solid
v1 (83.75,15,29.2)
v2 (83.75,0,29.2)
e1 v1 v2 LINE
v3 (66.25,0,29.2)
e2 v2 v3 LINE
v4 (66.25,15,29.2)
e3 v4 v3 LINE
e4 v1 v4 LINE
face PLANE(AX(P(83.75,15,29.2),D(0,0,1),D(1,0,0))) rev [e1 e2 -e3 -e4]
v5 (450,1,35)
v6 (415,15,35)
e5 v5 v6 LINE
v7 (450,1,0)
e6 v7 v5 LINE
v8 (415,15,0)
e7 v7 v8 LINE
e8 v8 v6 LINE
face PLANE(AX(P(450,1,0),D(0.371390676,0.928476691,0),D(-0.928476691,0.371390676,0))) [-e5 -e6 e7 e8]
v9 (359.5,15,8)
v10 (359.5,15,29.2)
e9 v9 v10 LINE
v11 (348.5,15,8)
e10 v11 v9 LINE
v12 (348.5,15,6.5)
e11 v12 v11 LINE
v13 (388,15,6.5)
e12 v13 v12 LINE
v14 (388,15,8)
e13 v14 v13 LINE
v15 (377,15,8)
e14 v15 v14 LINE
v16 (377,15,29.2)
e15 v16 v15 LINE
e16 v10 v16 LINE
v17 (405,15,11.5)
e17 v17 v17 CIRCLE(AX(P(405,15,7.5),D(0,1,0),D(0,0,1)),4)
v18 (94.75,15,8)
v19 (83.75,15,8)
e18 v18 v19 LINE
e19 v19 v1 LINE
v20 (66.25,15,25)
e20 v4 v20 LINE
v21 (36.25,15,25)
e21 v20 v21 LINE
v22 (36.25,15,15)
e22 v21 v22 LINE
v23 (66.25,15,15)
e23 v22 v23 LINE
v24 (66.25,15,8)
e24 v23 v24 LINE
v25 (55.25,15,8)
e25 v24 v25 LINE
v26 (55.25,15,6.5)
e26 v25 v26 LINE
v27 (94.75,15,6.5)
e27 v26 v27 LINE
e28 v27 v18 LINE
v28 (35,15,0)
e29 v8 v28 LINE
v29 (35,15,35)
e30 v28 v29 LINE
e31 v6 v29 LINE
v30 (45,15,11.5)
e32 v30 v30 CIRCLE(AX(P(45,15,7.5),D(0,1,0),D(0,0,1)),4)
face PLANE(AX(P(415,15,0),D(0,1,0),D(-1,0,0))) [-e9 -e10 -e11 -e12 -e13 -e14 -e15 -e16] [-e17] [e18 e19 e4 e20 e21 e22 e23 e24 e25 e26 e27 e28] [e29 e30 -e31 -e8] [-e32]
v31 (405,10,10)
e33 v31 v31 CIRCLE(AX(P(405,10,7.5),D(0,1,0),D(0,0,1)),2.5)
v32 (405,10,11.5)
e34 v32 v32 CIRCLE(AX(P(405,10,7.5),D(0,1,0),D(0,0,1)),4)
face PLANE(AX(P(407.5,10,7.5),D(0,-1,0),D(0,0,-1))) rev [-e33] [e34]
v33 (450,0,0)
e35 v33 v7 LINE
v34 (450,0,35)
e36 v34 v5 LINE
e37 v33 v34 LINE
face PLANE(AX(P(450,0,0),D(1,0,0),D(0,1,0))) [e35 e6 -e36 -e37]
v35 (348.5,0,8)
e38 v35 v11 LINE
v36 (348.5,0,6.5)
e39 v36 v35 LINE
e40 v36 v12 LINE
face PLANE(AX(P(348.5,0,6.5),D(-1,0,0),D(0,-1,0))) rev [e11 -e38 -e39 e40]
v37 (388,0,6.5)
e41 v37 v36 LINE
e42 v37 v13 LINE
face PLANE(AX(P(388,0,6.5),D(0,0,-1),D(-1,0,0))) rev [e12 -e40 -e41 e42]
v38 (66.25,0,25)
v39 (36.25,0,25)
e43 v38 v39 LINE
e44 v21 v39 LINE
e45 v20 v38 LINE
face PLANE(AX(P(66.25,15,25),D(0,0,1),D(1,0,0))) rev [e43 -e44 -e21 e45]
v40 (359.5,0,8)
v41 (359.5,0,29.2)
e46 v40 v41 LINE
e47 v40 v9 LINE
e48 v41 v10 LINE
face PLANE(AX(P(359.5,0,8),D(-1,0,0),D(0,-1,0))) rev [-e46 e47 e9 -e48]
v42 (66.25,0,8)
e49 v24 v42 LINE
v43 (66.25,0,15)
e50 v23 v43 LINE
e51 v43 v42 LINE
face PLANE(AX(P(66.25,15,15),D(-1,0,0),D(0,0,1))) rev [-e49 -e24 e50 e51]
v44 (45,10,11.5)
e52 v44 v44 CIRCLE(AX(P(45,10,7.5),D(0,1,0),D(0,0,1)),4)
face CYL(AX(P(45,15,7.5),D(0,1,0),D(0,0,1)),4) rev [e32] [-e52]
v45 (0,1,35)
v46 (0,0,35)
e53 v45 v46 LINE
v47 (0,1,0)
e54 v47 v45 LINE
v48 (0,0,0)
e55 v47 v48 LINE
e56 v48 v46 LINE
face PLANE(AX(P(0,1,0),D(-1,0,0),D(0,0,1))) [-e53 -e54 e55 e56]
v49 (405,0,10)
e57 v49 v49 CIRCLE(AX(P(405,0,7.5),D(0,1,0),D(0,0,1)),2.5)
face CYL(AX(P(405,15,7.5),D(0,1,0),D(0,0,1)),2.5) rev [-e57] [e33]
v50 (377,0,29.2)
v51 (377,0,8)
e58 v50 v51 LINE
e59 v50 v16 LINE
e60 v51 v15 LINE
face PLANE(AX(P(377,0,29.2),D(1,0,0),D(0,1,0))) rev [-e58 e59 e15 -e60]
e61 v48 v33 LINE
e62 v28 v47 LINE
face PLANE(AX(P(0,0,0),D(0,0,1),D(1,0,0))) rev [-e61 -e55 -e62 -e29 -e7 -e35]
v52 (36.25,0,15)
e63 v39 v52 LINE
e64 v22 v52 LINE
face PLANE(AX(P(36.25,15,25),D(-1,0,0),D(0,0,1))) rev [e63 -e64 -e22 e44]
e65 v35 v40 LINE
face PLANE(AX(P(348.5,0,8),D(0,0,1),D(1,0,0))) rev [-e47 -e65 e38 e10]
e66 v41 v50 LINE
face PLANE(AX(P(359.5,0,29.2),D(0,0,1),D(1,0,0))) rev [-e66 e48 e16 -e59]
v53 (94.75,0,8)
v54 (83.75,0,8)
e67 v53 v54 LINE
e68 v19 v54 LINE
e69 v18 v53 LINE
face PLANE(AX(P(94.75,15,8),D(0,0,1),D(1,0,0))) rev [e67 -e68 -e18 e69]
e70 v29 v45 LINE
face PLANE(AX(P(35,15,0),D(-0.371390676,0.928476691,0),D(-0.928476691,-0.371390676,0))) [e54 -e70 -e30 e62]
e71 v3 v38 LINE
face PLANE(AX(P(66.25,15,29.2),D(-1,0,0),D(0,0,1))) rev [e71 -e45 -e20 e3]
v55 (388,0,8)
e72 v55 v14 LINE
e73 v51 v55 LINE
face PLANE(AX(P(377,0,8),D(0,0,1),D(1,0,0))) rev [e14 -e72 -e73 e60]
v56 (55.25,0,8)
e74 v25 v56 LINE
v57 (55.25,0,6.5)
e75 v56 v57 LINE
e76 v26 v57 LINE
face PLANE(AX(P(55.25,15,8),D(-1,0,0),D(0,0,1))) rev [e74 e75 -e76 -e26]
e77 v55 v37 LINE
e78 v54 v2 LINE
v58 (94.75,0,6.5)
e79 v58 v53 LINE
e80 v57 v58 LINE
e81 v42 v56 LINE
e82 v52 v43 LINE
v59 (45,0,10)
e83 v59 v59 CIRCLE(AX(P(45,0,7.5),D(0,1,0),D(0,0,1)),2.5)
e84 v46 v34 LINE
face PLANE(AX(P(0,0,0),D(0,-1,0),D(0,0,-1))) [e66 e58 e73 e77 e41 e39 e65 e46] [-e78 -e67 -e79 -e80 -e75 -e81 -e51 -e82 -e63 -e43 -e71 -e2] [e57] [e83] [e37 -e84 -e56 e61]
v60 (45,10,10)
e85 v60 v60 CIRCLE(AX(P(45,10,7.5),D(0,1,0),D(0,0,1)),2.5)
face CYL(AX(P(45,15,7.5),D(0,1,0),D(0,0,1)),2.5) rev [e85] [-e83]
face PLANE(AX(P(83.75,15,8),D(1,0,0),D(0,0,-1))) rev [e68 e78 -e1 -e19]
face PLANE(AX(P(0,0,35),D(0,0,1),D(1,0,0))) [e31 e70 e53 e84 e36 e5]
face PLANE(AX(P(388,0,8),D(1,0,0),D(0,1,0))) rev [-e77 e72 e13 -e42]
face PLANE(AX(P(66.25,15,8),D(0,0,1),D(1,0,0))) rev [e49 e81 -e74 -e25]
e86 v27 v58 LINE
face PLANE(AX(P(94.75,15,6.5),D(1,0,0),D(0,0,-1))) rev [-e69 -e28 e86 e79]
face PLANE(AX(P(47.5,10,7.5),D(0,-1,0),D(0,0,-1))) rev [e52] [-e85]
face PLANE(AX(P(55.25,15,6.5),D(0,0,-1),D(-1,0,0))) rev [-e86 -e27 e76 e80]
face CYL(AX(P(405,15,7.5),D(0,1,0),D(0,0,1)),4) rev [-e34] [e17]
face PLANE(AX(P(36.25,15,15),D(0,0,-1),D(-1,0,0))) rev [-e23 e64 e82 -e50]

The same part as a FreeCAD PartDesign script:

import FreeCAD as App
import Part
import Sketcher
from FreeCAD import Vector

doc = App.newDocument("Part")
body = doc.addObject("PartDesign::Body", "Body")

sketch1 = body.newObject("Sketcher::SketchObject", "Sketch")
sketch1.AttachmentSupport = (doc.getObject("XY_Plane"), [""])
sketch1.MapMode = "FlatFace"
sketch1.AttachmentOffset = App.Placement(Vector(0, 0, 35), App.Rotation())
sketch1.addGeometry(Part.LineSegment(Vector(0, 0, 0), Vector(450, 0, 0)), False)
sketch1.addGeometry(Part.LineSegment(Vector(450, 0, 0), Vector(450, 1, 0)), False)
sketch1.addGeometry(Part.LineSegment(Vector(450, 1, 0), Vector(415, 15, 0)), False)
sketch1.addGeometry(Part.LineSegment(Vector(415, 15, 0), Vector(35, 15, 0)), False)
sketch1.addGeometry(Part.LineSegment(Vector(35, 15, 0), Vector(0, 1, 0)), False)
sketch1.addGeometry(Part.LineSegment(Vector(0, 1, 0), Vector(0, 0, 0)), False)
sketch1.addConstraint(Sketcher.Constraint("Coincident", 0, 2, 1, 1))
sketch1.addConstraint(Sketcher.Constraint("Coincident", 1, 2, 2, 1))
sketch1.addConstraint(Sketcher.Constraint("Coincident", 2, 2, 3, 1))
sketch1.addConstraint(Sketcher.Constraint("Coincident", 3, 2, 4, 1))
sketch1.addConstraint(Sketcher.Constraint("Coincident", 4, 2, 5, 1))
sketch1.addConstraint(Sketcher.Constraint("Coincident", 5, 2, 0, 1))
sketch1.addConstraint(Sketcher.Constraint("Horizontal", 0))
sketch1.addConstraint(Sketcher.Constraint("Vertical", 1))
sketch1.addConstraint(Sketcher.Constraint("Horizontal", 3))
sketch1.addConstraint(Sketcher.Constraint("Vertical", 5))
sketch1.addConstraint(Sketcher.Constraint("Coincident", 5, 2, -1, 1))
sketch1.addConstraint(Sketcher.Constraint("Horizontal", 1, 2, 4, 2))
sketch1.addConstraint(Sketcher.Constraint("Equal", 2, 4))
sketch1.addConstraint(Sketcher.Constraint("DistanceX", 0, 1, 0, 2, 450.0))
sketch1.addConstraint(Sketcher.Constraint("DistanceX", 3, 2, 3, 1, 380.0))
sketch1.addConstraint(Sketcher.Constraint("DistanceY", 1, 1, 1, 2, 1.0))
sketch1.addConstraint(Sketcher.Constraint("DistanceY", -1, 1, 2, 2, 15.0))
pad1 = body.newObject("PartDesign::Pad", "Pad")
pad1.Profile = sketch1
pad1.Length = 35
pad1.Reversed = True

sketch2 = body.newObject("Sketcher::SketchObject", "Sketch001")
sketch2.AttachmentSupport = (doc.getObject("XZ_Plane"), [""])
sketch2.MapMode = "FlatFace"
sketch2.AttachmentOffset = App.Placement(Vector(0, 0, -15), App.Rotation())
sketch2.addGeometry(Part.LineSegment(Vector(359.5, 8, 0), Vector(359.5, 29.2, 0)), False)
sketch2.addGeometry(Part.LineSegment(Vector(359.5, 29.2, 0), Vector(377, 29.2, 0)), False)
sketch2.addGeometry(Part.LineSegment(Vector(377, 29.2, 0), Vector(377, 8, 0)), False)
sketch2.addGeometry(Part.LineSegment(Vector(377, 8, 0), Vector(388, 8, 0)), False)
sketch2.addGeometry(Part.LineSegment(Vector(388, 8, 0), Vector(388, 6.5, 0)), False)
sketch2.addGeometry(Part.LineSegment(Vector(388, 6.5, 0), Vector(348.5, 6.5, 0)), False)
sketch2.addGeometry(Part.LineSegment(Vector(348.5, 6.5, 0), Vector(348.5, 8, 0)), False)
sketch2.addGeometry(Part.LineSegment(Vector(348.5, 8, 0), Vector(359.5, 8, 0)), False)
sketch2.addConstraint(Sketcher.Constraint("Coincident", 0, 2, 1, 1))
sketch2.addConstraint(Sketcher.Constraint("Coincident", 1, 2, 2, 1))
sketch2.addConstraint(Sketcher.Constraint("Coincident", 2, 2, 3, 1))
sketch2.addConstraint(Sketcher.Constraint("Coincident", 3, 2, 4, 1))
sketch2.addConstraint(Sketcher.Constraint("Coincident", 4, 2, 5, 1))
sketch2.addConstraint(Sketcher.Constraint("Coincident", 5, 2, 6, 1))
sketch2.addConstraint(Sketcher.Constraint("Coincident", 6, 2, 7, 1))
sketch2.addConstraint(Sketcher.Constraint("Coincident", 7, 2, 0, 1))
sketch2.addConstraint(Sketcher.Constraint("Vertical", 0))
sketch2.addConstraint(Sketcher.Constraint("Horizontal", 1))
sketch2.addConstraint(Sketcher.Constraint("Vertical", 2))
sketch2.addConstraint(Sketcher.Constraint("Horizontal", 3))
sketch2.addConstraint(Sketcher.Constraint("Vertical", 4))
sketch2.addConstraint(Sketcher.Constraint("Horizontal", 5))
sketch2.addConstraint(Sketcher.Constraint("Vertical", 6))
sketch2.addConstraint(Sketcher.Constraint("Horizontal", 7))
sketch2.addConstraint(Sketcher.Constraint("Horizontal", 3, 2, 6, 2))
sketch2.addConstraint(Sketcher.Constraint("Equal", 3, 7))
sketch2.addConstraint(Sketcher.Constraint("DistanceX", 3, 1, 3, 2, 11.0))
sketch2.addConstraint(Sketcher.Constraint("DistanceX", 1, 1, 1, 2, 17.5))
sketch2.addConstraint(Sketcher.Constraint("DistanceY", 0, 1, 0, 2, 21.2))
sketch2.addConstraint(Sketcher.Constraint("DistanceY", 4, 2, 4, 1, 1.5))
sketch2.addConstraint(Sketcher.Constraint("DistanceX", -1, 1, 1, 2, 377.0))
sketch2.addConstraint(Sketcher.Constraint("DistanceY", -1, 1, 2, 2, 8.0))
pocket1 = body.newObject("PartDesign::Pocket", "Pocket")
pocket1.Profile = sketch2
pocket1.Type = "ThroughAll"
pocket1.Reversed = True

sketch3 = body.newObject("Sketcher::SketchObject", "Sketch002")
sketch3.AttachmentSupport = (doc.getObject("XZ_Plane"), [""])
sketch3.MapMode = "FlatFace"
sketch3.addGeometry(Part.LineSegment(Vector(66.2, 15, 0), Vector(66.2, 8, 0)), False)
sketch3.addGeometry(Part.LineSegment(Vector(66.2, 8, 0), Vector(55.2, 8, 0)), False)
sketch3.addGeometry(Part.LineSegment(Vector(55.2, 8, 0), Vector(55.2, 6.5, 0)), False)
sketch3.addGeometry(Part.LineSegment(Vector(55.2, 6.5, 0), Vector(94.8, 6.5, 0)), False)
sketch3.addGeometry(Part.LineSegment(Vector(94.8, 6.5, 0), Vector(94.8, 8, 0)), False)
sketch3.addGeometry(Part.LineSegment(Vector(94.8, 8, 0), Vector(83.8, 8, 0)), False)
sketch3.addGeometry(Part.LineSegment(Vector(83.8, 8, 0), Vector(83.8, 29.2, 0)), False)
sketch3.addGeometry(Part.LineSegment(Vector(83.8, 29.2, 0), Vector(66.2, 29.2, 0)), False)
sketch3.addGeometry(Part.LineSegment(Vector(66.2, 29.2, 0), Vector(66.2, 25, 0)), False)
sketch3.addGeometry(Part.LineSegment(Vector(66.2, 25, 0), Vector(36.2, 25, 0)), False)
sketch3.addGeometry(Part.LineSegment(Vector(36.2, 25, 0), Vector(36.2, 15, 0)), False)
sketch3.addGeometry(Part.LineSegment(Vector(36.2, 15, 0), Vector(66.2, 15, 0)), False)
sketch3.addConstraint(Sketcher.Constraint("Coincident", 0, 2, 1, 1))
sketch3.addConstraint(Sketcher.Constraint("Coincident", 1, 2, 2, 1))
sketch3.addConstraint(Sketcher.Constraint("Coincident", 2, 2, 3, 1))
sketch3.addConstraint(Sketcher.Constraint("Coincident", 3, 2, 4, 1))
sketch3.addConstraint(Sketcher.Constraint("Coincident", 4, 2, 5, 1))
sketch3.addConstraint(Sketcher.Constraint("Coincident", 5, 2, 6, 1))
sketch3.addConstraint(Sketcher.Constraint("Coincident", 6, 2, 7, 1))
sketch3.addConstraint(Sketcher.Constraint("Coincident", 7, 2, 8, 1))
sketch3.addConstraint(Sketcher.Constraint("Coincident", 8, 2, 9, 1))
sketch3.addConstraint(Sketcher.Constraint("Coincident", 9, 2, 10, 1))
sketch3.addConstraint(Sketcher.Constraint("Coincident", 10, 2, 11, 1))
sketch3.addConstraint(Sketcher.Constraint("Coincident", 11, 2, 0, 1))
sketch3.addConstraint(Sketcher.Constraint("Vertical", 0))
sketch3.addConstraint(Sketcher.Constraint("Horizontal", 1))
sketch3.addConstraint(Sketcher.Constraint("Vertical", 2))
sketch3.addConstraint(Sketcher.Constraint("Horizontal", 3))
sketch3.addConstraint(Sketcher.Constraint("Vertical", 4))
sketch3.addConstraint(Sketcher.Constraint("Horizontal", 5))
sketch3.addConstraint(Sketcher.Constraint("Vertical", 6))
sketch3.addConstraint(Sketcher.Constraint("Horizontal", 7))
sketch3.addConstraint(Sketcher.Constraint("Vertical", 8))
sketch3.addConstraint(Sketcher.Constraint("Horizontal", 9))
sketch3.addConstraint(Sketcher.Constraint("Vertical", 10))
sketch3.addConstraint(Sketcher.Constraint("Horizontal", 11))
sketch3.addConstraint(Sketcher.Constraint("Horizontal", 1, 2, 4, 2))
sketch3.addConstraint(Sketcher.Constraint("Vertical", 0, 2, 7, 2))
sketch3.addConstraint(Sketcher.Constraint("Equal", 1, 5))
sketch3.addConstraint(Sketcher.Constraint("DistanceX", 1, 2, 1, 1, 11.0))
sketch3.addConstraint(Sketcher.Constraint("DistanceX", 9, 2, 9, 1, 30.0))
sketch3.addConstraint(Sketcher.Constraint("DistanceY", 0, 2, 0, 1, 7.0))
sketch3.addConstraint(Sketcher.Constraint("DistanceY", 10, 2, 10, 1, 10.0))
sketch3.addConstraint(Sketcher.Constraint("DistanceX", 3, 1, 3, 2, 39.5))
sketch3.addConstraint(Sketcher.Constraint("DistanceY", 2, 2, 2, 1, 1.5))
sketch3.addConstraint(Sketcher.Constraint("DistanceY", 6, 1, 6, 2, 21.2))
sketch3.addConstraint(Sketcher.Constraint("DistanceY", -1, 1, 0, 2, 8.0))
sketch3.addConstraint(Sketcher.Constraint("DistanceX", -1, 1, 0, 2, 66.25))
pocket2 = body.newObject("PartDesign::Pocket", "Pocket001")
pocket2.Profile = sketch3
pocket2.Type = "ThroughAll"

sketch4 = body.newObject("Sketcher::SketchObject", "Sketch003")
sketch4.AttachmentSupport = (doc.getObject("XZ_Plane"), [""])
sketch4.MapMode = "FlatFace"
sketch4.AttachmentOffset = App.Placement(Vector(0, 0, -15), App.Rotation())
sketch4.addGeometry(Part.Circle(Vector(45, 7.5, 0), Vector(0, 0, 1), 2.5), False)
sketch4.addGeometry(Part.Circle(Vector(405, 7.5, 0), Vector(0, 0, 1), 2.5), False)
sketch4.addConstraint(Sketcher.Constraint("Equal", 0, 1))
sketch4.addConstraint(Sketcher.Constraint("Horizontal", 0, 3, 1, 3))
sketch4.addConstraint(Sketcher.Constraint("Diameter", 0, 5.0))
sketch4.addConstraint(Sketcher.Constraint("DistanceX", -1, 1, 0, 3, 45.0))
sketch4.addConstraint(Sketcher.Constraint("DistanceX", -1, 1, 1, 3, 405.0))
sketch4.addConstraint(Sketcher.Constraint("DistanceY", -1, 1, 0, 3, 7.5))
doc.recompute()
hole = body.newObject("PartDesign::Hole", "Hole")
hole.Profile = sketch4
hole.ThreadType = "None"
hole.Diameter = 5
hole.DepthType = "ThroughAll"
hole.HoleCutType = "Counterbore"
hole.HoleCutDiameter = 8
hole.HoleCutDepth = 5
hole.Reversed = True

doc.recompute()
